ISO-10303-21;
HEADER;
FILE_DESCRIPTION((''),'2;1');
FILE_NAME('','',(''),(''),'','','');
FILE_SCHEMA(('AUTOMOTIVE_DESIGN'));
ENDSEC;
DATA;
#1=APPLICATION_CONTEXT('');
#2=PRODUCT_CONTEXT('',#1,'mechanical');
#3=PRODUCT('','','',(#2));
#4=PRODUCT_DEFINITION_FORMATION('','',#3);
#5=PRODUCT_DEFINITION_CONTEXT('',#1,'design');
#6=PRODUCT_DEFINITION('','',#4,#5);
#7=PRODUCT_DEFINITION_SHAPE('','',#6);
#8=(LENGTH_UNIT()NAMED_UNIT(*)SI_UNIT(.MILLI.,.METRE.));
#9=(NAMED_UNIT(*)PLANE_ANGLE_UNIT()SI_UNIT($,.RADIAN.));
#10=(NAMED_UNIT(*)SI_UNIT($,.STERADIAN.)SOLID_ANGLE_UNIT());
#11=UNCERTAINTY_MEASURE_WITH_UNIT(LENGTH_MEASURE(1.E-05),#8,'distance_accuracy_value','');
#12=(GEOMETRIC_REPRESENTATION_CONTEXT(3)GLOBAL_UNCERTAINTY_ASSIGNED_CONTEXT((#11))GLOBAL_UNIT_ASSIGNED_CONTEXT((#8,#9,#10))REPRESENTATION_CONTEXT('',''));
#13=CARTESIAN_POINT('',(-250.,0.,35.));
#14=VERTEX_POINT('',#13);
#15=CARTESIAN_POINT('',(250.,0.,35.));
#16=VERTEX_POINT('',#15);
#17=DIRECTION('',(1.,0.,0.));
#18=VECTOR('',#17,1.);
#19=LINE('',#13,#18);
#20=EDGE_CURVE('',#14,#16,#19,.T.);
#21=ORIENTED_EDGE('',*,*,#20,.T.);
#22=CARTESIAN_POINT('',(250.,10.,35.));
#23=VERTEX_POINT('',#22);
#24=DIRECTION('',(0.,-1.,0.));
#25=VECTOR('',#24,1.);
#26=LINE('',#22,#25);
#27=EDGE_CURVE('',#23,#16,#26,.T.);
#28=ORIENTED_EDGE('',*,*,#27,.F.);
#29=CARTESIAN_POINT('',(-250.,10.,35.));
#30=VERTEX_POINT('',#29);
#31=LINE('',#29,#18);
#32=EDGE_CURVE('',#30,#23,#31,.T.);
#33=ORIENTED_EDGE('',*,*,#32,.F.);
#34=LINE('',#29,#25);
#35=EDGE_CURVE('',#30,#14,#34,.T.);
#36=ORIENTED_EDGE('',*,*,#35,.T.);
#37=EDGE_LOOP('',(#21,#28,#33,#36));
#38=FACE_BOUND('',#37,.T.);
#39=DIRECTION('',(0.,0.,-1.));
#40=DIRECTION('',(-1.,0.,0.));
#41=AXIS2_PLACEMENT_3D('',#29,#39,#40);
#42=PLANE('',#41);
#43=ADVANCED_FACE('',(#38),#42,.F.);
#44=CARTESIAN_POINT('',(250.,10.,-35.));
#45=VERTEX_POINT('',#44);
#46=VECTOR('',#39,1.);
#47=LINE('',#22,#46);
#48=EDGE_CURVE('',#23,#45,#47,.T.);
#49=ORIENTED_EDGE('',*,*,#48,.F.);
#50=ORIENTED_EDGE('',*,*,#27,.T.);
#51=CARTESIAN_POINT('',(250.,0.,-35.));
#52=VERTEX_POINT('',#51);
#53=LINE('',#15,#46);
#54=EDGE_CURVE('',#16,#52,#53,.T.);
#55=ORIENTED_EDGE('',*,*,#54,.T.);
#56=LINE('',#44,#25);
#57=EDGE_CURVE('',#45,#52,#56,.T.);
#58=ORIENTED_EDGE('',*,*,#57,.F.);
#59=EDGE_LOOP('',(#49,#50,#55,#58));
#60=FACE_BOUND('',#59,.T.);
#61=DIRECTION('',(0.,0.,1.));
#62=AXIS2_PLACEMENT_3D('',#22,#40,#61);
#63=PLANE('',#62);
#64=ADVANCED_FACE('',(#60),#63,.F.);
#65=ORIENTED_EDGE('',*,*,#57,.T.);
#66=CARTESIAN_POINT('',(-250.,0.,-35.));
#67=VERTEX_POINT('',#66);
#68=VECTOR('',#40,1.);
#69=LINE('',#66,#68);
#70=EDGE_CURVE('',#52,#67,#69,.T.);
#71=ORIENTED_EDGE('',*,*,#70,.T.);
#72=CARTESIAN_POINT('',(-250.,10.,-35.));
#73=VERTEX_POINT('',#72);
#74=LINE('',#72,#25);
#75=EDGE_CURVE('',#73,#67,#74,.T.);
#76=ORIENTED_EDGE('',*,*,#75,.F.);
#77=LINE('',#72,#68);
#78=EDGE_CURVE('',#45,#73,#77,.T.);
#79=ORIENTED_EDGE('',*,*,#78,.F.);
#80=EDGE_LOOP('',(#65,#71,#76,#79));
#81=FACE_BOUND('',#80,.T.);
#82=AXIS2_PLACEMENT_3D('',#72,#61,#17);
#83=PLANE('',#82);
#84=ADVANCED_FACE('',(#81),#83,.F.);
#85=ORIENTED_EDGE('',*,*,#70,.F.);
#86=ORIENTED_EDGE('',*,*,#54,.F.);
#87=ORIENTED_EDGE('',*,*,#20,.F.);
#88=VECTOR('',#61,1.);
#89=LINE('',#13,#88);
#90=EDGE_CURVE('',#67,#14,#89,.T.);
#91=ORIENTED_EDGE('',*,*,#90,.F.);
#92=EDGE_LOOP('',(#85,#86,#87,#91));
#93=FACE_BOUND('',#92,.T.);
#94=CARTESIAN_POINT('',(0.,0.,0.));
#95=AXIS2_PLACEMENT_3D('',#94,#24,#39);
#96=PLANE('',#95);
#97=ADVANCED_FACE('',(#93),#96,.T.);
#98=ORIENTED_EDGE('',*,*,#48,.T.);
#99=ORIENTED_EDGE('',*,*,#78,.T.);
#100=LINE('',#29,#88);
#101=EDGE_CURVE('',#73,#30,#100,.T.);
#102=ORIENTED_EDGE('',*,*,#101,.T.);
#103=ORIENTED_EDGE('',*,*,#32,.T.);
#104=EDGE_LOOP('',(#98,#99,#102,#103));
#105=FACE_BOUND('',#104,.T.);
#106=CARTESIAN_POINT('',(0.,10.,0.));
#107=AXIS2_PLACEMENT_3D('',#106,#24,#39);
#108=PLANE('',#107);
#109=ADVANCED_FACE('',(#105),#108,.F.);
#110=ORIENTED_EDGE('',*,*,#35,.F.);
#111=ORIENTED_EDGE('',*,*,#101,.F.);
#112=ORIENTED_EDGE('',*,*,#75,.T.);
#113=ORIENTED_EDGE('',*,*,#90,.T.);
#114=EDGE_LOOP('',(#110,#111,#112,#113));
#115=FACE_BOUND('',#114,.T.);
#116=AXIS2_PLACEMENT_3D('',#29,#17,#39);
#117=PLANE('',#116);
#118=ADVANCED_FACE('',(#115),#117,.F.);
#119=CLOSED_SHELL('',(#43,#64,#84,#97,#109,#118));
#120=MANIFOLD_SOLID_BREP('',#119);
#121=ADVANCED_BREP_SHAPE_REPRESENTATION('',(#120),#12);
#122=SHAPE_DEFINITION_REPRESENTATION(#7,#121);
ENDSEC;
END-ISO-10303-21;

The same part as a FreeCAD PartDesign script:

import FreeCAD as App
import Part
import Sketcher
from FreeCAD import Vector
Q = App.Units.Quantity


def add_polygon(sketch, points):
    """Adds a closed chain of lines whose ends are joined by coincident constraints."""
    first, n = sketch.GeometryCount, len(points)
    for a, b in zip(points, points[1:] + points[:1]):
        sketch.addGeometry(Part.LineSegment(App.Vector(*a, 0), App.Vector(*b, 0)), False)
    for i in range(n):
        sketch.addConstraint(Sketcher.Constraint("Coincident", first + i, 2, first + (i + 1) % n, 1))

doc = App.newDocument("Part")
body = doc.addObject("PartDesign::Body", "Body")

sketch1 = body.newObject("Sketcher::SketchObject", "Sketch")
sketch1.AttachmentSupport = (doc.getObject("XZ_Plane"), [""])
sketch1.MapMode = "FlatFace"
add_polygon(sketch1, [(-250, -35), (-250, 35), (250, 35), (250, -35)])
sketch1.addConstraint(Sketcher.Constraint("Vertical", 0))
sketch1.addConstraint(Sketcher.Constraint("Horizontal", 1))
sketch1.addConstraint(Sketcher.Constraint("Vertical", 2))
sketch1.addConstraint(Sketcher.Constraint("Horizontal", 3))
sketch1.addConstraint(Sketcher.Constraint("Symmetric", 0, 2, 2, 2, -1, 1))
sketch1.addConstraint(Sketcher.Constraint("DistanceX", 1, 1, 1, 2, Q("500 mm")))
sketch1.addConstraint(Sketcher.Constraint("DistanceY", 0, 1, 0, 2, Q("70 mm")))
pad1 = body.newObject("PartDesign::Pad", "Pad")
pad1.Profile = sketch1
pad1.Length = 10
pad1.Reversed = True

doc.recompute()
